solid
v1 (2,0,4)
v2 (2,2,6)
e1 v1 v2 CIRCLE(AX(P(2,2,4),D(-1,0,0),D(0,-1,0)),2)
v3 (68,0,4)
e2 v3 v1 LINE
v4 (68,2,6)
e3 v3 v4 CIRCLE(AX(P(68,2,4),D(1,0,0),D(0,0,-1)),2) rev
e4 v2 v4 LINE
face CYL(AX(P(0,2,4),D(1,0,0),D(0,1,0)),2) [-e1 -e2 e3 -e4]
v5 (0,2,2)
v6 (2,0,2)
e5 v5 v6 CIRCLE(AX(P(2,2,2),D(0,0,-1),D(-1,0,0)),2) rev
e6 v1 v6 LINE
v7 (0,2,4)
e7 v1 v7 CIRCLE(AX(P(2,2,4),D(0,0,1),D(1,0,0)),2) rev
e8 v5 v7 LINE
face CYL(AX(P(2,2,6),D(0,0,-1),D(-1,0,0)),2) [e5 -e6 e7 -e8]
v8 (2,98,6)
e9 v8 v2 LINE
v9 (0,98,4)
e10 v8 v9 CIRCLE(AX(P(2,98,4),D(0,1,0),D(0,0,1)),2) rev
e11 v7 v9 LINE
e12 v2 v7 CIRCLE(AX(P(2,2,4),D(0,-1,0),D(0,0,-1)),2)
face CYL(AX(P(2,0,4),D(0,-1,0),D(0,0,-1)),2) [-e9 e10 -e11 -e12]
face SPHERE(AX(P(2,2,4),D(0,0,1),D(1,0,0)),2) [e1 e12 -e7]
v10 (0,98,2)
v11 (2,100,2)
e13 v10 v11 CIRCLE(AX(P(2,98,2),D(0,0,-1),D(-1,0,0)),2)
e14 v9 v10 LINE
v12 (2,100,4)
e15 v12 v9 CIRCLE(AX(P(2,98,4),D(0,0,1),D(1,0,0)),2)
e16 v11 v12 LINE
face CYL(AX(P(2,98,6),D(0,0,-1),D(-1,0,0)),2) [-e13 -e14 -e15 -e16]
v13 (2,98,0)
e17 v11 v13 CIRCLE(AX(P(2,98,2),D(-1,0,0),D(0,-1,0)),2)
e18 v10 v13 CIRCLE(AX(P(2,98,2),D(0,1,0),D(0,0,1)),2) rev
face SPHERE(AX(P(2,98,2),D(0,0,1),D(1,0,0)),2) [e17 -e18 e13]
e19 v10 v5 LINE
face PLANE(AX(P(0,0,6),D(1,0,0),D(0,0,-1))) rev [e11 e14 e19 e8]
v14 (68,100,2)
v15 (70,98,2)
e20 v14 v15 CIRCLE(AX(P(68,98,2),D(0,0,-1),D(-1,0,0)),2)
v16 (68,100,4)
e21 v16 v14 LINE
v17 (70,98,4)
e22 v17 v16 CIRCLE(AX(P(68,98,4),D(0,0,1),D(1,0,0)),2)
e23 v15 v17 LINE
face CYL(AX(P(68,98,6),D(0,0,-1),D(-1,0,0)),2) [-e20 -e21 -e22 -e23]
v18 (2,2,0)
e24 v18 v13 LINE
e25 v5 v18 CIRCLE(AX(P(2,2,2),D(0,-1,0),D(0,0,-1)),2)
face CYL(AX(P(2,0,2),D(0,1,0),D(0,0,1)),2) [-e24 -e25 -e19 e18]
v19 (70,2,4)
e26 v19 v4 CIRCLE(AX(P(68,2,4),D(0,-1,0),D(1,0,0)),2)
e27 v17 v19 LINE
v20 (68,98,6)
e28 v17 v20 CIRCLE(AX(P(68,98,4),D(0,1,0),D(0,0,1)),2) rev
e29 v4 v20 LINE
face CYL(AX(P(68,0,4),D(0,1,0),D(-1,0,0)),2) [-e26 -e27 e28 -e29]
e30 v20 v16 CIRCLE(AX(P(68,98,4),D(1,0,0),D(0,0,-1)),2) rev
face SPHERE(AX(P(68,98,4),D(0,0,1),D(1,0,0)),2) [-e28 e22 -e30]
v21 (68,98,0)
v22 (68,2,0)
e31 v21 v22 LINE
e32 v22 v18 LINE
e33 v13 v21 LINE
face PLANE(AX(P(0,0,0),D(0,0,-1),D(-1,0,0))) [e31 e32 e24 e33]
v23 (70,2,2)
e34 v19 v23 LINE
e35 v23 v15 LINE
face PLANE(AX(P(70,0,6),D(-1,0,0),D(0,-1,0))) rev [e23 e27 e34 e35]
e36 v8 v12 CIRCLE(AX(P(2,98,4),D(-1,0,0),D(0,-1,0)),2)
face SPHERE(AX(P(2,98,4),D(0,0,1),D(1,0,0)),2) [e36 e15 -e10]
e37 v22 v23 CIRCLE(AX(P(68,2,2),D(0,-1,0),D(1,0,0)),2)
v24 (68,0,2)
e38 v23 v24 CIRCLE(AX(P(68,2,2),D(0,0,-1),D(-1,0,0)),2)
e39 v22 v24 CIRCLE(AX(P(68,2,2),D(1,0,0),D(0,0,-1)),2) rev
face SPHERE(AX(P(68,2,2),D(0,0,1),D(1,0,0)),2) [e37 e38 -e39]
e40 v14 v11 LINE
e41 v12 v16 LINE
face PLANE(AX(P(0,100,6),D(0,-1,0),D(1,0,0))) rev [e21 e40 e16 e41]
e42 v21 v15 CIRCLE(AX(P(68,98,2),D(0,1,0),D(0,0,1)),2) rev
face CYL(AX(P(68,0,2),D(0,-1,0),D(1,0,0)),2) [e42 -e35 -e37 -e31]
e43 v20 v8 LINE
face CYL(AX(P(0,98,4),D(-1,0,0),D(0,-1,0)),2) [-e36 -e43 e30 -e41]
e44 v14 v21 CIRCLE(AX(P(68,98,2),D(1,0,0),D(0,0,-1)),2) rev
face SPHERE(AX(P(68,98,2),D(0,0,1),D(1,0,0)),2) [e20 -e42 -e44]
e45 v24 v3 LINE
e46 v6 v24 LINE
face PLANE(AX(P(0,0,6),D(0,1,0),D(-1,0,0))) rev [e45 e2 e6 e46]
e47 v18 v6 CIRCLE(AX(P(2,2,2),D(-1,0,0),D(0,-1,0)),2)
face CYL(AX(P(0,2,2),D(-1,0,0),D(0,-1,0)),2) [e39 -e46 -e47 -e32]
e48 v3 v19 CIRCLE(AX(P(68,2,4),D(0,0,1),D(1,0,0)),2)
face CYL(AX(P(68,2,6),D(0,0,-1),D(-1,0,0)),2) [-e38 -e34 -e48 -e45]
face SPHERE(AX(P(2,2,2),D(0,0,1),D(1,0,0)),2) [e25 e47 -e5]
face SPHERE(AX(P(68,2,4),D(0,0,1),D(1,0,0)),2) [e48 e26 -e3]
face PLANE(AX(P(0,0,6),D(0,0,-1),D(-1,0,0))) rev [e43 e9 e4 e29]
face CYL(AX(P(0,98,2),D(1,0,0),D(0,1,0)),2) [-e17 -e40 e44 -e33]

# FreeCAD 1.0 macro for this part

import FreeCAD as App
import Part
import Sketcher

V = App.Vector
Q = App.Units.Quantity


def add_polygon(sketch, points):
    """Adds a closed chain of lines whose ends are joined by coincident constraints."""
    first, n = sketch.GeometryCount, len(points)
    for a, b in zip(points, points[1:] + points[:1]):
        sketch.addGeometry(Part.LineSegment(App.Vector(*a, 0), App.Vector(*b, 0)), False)
    for i in range(n):
        sketch.addConstraint(Sketcher.Constraint("Coincident", first + i, 2, first + (i + 1) % n, 1))

doc = App.newDocument("Part")
params = doc.addObject("Spreadsheet::Sheet", "Params")
for row, (alias, value) in enumerate([
    ("sketch1_width", "70 mm"),
    ("sketch1_height", "100 mm"),
    ("pad1_length", "6 mm"),
    ("fillet_radius", "2 mm"),
], start=1):
    params.set(f"A{row}", alias)
    params.set(f"B{row}", "=" + value)
    params.setAlias(f"B{row}", alias)

body = doc.addObject("PartDesign::Body", "Body")

# Sketch on XY plane
sketch1 = doc.addObject("Sketcher::SketchObject", "Sketch")
body.addObject(sketch1)
sketch1.AttachmentSupport = (doc.XY_Plane, [""])
sketch1.MapMode = "FlatFace"
add_polygon(sketch1, [(0, 100), (0, 0), (70, 0), (70, 100)])  # lines 0-3
sketch1.addConstraint([
    Sketcher.Constraint("Vertical", 0),
    Sketcher.Constraint("Horizontal", 1),
    Sketcher.Constraint("Vertical", 2),
    Sketcher.Constraint("Horizontal", 3),
    Sketcher.Constraint("Coincident", 0, 2, -1, 1),
    Sketcher.Constraint("DistanceX", 1, 1, 1, 2, Q("70 mm")),
    Sketcher.Constraint("DistanceY", 0, 2, 0, 1, Q("100 mm")),
])
sketch1.setExpression("Constraints[9]", "Params.sketch1_width")
sketch1.setExpression("Constraints[10]", "Params.sketch1_height")
pad1 = doc.addObject("PartDesign::Pad", "Pad")
body.addObject(pad1)
pad1.Profile = sketch1
pad1.setExpression("Length", "Params.pad1_length")
doc.recompute()

fillet = doc.addObject("PartDesign::Fillet", "Fillet")
body.addObject(fillet)
fillet.Base = (pad1, ["Edge1"])
fillet.UseAllEdges = True
fillet.setExpression("Radius", "Params.fillet_radius")

doc.recompute()
